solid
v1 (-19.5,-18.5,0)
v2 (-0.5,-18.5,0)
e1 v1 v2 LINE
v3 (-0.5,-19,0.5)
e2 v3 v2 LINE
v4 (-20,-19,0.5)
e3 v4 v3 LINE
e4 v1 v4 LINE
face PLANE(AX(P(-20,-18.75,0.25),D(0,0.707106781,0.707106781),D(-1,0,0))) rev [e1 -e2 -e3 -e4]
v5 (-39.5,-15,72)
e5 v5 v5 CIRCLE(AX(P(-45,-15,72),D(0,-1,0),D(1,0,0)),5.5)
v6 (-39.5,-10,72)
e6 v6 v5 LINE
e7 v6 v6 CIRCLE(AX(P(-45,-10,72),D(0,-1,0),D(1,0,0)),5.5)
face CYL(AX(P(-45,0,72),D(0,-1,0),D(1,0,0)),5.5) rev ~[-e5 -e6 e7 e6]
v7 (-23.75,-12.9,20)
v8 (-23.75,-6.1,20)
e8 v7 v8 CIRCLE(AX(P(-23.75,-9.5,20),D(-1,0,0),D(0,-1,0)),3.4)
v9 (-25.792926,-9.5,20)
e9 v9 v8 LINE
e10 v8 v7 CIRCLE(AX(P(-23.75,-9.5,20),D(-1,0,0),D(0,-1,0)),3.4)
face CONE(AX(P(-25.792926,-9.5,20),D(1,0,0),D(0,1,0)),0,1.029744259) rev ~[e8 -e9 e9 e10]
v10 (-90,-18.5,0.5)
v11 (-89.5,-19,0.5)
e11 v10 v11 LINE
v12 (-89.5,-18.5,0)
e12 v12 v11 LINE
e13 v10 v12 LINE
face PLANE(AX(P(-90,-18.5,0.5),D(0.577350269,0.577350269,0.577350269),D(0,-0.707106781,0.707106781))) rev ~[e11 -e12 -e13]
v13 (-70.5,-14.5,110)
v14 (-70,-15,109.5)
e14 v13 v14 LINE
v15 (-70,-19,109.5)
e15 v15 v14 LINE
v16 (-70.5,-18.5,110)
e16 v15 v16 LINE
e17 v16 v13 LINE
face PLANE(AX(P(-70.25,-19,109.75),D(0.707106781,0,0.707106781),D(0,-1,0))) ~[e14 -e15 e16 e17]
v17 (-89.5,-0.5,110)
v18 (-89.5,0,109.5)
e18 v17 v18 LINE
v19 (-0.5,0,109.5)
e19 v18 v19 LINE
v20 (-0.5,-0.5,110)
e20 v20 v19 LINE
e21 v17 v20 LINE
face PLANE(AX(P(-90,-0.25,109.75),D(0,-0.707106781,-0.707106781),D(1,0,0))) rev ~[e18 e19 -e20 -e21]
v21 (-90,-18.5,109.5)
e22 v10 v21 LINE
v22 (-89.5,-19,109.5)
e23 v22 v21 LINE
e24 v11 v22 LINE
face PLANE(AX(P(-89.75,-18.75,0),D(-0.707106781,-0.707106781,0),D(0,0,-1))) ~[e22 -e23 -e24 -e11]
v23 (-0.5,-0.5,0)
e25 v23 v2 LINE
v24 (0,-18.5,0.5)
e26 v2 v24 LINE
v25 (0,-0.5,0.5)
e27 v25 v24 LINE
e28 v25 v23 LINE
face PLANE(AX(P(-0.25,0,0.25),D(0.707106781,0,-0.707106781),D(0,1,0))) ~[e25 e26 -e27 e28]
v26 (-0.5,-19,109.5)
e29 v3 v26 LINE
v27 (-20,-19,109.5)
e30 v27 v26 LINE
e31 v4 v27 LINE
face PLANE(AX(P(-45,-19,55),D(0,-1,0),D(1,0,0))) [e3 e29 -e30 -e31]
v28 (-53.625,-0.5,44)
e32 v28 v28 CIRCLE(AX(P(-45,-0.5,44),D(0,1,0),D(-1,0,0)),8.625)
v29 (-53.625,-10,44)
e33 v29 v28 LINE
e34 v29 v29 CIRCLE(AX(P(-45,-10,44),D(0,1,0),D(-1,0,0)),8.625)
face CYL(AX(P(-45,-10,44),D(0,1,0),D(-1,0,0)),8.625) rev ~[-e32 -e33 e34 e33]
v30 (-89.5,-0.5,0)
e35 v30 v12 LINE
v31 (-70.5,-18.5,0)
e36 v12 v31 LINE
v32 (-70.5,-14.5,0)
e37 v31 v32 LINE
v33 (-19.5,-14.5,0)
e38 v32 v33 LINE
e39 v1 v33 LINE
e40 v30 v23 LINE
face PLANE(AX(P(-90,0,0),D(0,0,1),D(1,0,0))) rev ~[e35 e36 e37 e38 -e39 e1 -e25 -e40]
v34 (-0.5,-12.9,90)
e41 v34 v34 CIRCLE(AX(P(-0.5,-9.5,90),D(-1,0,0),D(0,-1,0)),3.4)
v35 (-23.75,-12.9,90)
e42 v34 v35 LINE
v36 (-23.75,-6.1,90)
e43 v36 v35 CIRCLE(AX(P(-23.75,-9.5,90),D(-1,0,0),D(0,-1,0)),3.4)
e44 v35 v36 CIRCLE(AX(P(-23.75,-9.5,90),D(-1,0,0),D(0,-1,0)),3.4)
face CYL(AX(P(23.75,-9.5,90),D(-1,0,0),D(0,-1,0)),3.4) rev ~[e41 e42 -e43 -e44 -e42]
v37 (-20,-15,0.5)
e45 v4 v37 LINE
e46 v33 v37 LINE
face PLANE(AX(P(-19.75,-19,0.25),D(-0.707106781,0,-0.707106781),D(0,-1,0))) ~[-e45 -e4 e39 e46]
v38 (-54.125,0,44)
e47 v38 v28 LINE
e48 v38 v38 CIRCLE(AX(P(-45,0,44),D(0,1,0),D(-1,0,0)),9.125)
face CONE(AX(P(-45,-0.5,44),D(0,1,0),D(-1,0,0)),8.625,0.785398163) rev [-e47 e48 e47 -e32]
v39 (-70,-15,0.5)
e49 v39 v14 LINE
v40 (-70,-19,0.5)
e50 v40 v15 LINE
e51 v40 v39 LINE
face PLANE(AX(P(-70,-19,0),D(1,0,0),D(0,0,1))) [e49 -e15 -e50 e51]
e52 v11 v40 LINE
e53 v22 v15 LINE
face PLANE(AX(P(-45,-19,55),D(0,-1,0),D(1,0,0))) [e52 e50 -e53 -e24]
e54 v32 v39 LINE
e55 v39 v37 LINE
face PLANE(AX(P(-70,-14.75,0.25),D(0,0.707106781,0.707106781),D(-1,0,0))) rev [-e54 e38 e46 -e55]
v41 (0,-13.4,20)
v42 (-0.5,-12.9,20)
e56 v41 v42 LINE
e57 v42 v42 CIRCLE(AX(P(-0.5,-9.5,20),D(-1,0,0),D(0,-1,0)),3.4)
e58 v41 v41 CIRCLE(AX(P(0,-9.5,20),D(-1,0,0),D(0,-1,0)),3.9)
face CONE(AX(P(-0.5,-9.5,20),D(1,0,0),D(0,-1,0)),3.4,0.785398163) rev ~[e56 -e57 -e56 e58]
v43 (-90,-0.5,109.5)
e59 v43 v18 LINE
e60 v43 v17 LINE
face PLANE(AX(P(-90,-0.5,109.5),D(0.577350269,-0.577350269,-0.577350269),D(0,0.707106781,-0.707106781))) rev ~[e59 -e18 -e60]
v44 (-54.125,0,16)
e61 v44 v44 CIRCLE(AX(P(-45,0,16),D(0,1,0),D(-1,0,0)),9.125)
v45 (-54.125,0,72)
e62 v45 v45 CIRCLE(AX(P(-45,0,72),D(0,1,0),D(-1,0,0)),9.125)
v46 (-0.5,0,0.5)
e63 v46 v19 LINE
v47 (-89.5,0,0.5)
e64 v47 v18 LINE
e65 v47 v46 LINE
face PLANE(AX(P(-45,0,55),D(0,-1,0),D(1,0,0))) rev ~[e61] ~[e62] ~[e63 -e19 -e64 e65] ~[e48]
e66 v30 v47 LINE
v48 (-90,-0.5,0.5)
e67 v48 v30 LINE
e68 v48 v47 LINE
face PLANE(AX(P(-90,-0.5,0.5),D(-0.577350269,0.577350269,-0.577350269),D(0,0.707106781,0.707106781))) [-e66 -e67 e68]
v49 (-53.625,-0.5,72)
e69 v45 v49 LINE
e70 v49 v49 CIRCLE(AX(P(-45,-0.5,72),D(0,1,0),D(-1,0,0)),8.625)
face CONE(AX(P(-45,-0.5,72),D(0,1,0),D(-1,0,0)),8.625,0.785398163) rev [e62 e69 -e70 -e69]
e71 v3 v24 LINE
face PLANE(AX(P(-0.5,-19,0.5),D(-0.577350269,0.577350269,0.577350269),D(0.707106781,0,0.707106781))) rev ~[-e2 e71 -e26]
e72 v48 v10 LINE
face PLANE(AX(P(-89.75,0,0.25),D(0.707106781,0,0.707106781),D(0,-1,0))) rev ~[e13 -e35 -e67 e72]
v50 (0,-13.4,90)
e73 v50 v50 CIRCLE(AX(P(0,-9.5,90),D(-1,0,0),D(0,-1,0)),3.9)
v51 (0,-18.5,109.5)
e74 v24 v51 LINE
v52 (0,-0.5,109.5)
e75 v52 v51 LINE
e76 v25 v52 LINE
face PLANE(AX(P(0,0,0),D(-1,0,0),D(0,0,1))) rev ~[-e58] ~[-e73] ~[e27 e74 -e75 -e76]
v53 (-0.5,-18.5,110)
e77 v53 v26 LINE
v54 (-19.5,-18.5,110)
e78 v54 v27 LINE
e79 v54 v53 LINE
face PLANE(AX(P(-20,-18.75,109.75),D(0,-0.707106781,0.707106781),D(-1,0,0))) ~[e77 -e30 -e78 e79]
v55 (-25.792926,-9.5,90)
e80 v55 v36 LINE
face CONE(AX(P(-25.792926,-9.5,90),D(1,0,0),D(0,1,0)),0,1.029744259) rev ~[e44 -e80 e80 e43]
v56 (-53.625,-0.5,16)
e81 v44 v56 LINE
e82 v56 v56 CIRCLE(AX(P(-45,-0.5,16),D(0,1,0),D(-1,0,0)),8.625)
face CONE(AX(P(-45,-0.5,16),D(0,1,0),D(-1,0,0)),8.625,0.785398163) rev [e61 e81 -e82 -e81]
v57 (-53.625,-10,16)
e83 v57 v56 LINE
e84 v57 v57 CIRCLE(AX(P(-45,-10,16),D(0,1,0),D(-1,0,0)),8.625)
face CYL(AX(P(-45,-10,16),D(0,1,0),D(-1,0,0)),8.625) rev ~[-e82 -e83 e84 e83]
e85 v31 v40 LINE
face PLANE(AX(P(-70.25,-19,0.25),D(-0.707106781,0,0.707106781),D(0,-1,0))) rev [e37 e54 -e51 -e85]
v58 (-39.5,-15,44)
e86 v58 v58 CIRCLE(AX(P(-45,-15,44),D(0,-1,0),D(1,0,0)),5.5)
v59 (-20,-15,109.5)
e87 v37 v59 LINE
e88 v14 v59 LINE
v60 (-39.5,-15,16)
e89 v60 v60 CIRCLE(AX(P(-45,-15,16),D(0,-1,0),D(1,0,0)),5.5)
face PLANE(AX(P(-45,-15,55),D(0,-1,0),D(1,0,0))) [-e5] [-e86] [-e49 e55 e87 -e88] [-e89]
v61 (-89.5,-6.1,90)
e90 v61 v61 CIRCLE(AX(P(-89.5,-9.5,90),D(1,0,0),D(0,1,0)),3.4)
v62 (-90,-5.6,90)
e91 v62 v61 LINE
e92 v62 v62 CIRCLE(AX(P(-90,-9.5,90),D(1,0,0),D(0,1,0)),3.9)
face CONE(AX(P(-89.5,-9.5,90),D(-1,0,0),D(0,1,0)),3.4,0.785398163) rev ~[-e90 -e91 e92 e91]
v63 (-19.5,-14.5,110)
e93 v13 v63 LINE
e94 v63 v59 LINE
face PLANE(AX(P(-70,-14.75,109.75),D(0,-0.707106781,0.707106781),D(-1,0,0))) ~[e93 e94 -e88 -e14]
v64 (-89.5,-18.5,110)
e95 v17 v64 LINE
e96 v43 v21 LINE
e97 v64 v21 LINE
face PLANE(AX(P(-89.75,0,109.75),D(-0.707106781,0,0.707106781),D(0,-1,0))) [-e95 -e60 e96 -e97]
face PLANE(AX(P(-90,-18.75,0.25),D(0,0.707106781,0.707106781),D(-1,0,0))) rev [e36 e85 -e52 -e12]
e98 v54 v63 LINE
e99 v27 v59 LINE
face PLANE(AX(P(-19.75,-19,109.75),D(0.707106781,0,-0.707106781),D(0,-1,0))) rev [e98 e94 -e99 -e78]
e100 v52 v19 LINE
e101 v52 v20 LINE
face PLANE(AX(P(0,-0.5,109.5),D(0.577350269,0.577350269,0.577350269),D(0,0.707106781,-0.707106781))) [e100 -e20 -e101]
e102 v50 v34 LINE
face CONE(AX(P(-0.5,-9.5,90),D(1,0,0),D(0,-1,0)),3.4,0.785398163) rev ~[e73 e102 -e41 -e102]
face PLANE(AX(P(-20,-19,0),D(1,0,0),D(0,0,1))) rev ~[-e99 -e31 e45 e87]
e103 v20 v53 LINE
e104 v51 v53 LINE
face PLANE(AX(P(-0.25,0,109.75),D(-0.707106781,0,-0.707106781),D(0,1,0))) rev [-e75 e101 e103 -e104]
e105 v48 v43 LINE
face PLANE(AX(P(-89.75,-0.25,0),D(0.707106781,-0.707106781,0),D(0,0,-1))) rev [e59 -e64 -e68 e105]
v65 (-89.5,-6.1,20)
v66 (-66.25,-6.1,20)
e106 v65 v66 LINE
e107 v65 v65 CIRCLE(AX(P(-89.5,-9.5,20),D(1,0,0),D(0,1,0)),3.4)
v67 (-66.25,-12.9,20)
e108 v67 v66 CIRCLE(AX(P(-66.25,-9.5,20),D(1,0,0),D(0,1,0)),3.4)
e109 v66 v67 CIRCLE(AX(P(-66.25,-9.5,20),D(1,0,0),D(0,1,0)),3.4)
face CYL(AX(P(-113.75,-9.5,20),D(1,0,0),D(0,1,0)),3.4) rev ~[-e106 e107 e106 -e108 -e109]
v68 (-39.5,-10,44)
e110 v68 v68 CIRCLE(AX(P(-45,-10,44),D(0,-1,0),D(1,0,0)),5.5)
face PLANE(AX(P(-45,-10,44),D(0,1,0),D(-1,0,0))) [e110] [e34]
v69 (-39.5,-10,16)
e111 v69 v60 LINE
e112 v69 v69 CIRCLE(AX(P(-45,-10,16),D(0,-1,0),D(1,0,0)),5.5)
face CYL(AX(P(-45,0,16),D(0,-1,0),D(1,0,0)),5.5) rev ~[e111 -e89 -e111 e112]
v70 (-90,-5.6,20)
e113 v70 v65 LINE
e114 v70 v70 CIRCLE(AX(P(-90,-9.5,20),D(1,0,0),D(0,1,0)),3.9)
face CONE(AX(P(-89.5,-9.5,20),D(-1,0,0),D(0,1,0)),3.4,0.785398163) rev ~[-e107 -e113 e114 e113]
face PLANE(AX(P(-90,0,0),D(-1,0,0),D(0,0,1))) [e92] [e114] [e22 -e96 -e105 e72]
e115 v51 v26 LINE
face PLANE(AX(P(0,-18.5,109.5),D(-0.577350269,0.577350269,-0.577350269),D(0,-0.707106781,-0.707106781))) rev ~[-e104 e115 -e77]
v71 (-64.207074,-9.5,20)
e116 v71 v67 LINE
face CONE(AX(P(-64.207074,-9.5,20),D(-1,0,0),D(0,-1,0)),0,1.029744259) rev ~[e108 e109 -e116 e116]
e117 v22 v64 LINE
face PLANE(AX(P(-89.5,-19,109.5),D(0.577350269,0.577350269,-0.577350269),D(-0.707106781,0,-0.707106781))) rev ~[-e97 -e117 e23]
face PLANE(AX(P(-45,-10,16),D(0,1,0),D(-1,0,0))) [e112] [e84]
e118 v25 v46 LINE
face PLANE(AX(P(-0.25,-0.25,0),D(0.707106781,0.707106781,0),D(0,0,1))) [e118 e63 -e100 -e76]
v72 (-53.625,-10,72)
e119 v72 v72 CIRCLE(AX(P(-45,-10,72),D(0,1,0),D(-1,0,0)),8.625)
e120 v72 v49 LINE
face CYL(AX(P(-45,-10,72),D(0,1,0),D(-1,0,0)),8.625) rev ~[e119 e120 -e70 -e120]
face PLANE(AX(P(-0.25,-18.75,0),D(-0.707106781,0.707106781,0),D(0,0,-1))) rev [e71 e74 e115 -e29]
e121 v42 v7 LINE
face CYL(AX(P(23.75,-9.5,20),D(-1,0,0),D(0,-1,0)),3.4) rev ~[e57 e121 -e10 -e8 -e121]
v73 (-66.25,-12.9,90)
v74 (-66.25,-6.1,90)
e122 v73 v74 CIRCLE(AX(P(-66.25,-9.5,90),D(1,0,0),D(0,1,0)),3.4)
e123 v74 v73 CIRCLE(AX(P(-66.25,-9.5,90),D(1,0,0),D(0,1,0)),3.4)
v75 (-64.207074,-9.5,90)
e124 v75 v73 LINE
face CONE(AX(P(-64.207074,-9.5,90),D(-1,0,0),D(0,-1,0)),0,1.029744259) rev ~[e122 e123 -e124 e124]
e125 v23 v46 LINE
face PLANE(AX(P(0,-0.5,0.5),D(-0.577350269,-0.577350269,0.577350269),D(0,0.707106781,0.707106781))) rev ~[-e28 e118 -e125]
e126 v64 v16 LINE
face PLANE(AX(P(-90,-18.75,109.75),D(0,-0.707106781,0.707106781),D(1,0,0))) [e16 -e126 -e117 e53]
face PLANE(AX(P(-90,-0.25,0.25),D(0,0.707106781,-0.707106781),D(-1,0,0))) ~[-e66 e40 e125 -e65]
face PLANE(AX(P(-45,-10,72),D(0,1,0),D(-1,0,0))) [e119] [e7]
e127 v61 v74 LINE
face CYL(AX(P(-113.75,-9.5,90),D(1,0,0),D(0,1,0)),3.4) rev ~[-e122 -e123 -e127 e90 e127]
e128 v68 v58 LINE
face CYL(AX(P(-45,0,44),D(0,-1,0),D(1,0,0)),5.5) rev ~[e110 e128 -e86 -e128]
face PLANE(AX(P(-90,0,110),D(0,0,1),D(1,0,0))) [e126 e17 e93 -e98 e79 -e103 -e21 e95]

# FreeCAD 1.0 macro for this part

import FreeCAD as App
import Part
import Sketcher


def edges_at(feature, points):
    """Names of the edges that pass closest to the given points."""
    edges = feature.Shape.Edges
    near = lambda p: min(range(len(edges)), key=lambda i: edges[i].distToShape(Part.Vertex(*p))[0])
    return sorted({f"Edge{near(p) + 1}" for p in points})

doc = App.newDocument("Part")
body = doc.addObject("PartDesign::Body", "Body")

sketch1 = doc.addObject("Sketcher::SketchObject", "Sketch")
body.addObject(sketch1)
sketch1.AttachmentSupport = (doc.XZ_Plane, [""])
sketch1.MapMode = "FlatFace"
sketch1.addGeometry([
    Part.LineSegment(App.Vector(-90, 110, 0), App.Vector(-90, 0, 0)),
    Part.LineSegment(App.Vector(-90, 0, 0), App.Vector(0, 0, 0)),
    Part.LineSegment(App.Vector(0, 0, 0), App.Vector(0, 110, 0)),
    Part.LineSegment(App.Vector(0, 110, 0), App.Vector(-90, 110, 0)),
], False)
sketch1.addConstraint([
    Sketcher.Constraint("Coincident", 0, 2, 1, 1),
    Sketcher.Constraint("Coincident", 1, 2, 2, 1),
    Sketcher.Constraint("Coincident", 2, 2, 3, 1),
    Sketcher.Constraint("Coincident", 3, 2, 0, 1),
    Sketcher.Constraint("Vertical", 0),
    Sketcher.Constraint("Horizontal", 1),
    Sketcher.Constraint("Vertical", 2),
    Sketcher.Constraint("Horizontal", 3),
    Sketcher.Constraint("Coincident", 1, 2, -1, 1),
    Sketcher.Constraint("DistanceX", 1, 1, 1, 2, 90.0),
    Sketcher.Constraint("DistanceY", 0, 2, 0, 1, 110.0),
])
pad1 = doc.addObject("PartDesign::Pad", "Pad")
body.addObject(pad1)
pad1.Profile = sketch1
pad1.Length = 19

sketch2 = doc.addObject("Sketcher::SketchObject", "Sketch001")
body.addObject(sketch2)
sketch2.AttachmentSupport = (doc.XZ_Plane, [""])
sketch2.MapMode = "FlatFace"
sketch2.AttachmentOffset = App.Placement(App.Vector(0, 0, 19), App.Rotation())
sketch2.addGeometry([
    Part.LineSegment(App.Vector(-70, 110, 0), App.Vector(-70, 0, 0)),
    Part.LineSegment(App.Vector(-70, 0, 0), App.Vector(-20, 0, 0)),
    Part.LineSegment(App.Vector(-20, 0, 0), App.Vector(-20, 110, 0)),
    Part.LineSegment(App.Vector(-20, 110, 0), App.Vector(-70, 110, 0)),
], False)
sketch2.addConstraint([
    Sketcher.Constraint("Coincident", 0, 2, 1, 1),
    Sketcher.Constraint("Coincident", 1, 2, 2, 1),
    Sketcher.Constraint("Coincident", 2, 2, 3, 1),
    Sketcher.Constraint("Coincident", 3, 2, 0, 1),
    Sketcher.Constraint("Vertical", 0),
    Sketcher.Constraint("Horizontal", 1),
    Sketcher.Constraint("Vertical", 2),
    Sketcher.Constraint("Horizontal", 3),
    Sketcher.Constraint("PointOnObject", 0, 2, -1),
    Sketcher.Constraint("DistanceX", 1, 1, 1, 2, 50.0),
    Sketcher.Constraint("DistanceY", 0, 2, 0, 1, 110.0),
    Sketcher.Constraint("DistanceX", 0, 2, -1, 1, 70.0),
])
pocket1 = doc.addObject("PartDesign::Pocket", "Pocket")
body.addObject(pocket1)
pocket1.Profile = sketch2
pocket1.Length = 4

sketch3 = doc.addObject("Sketcher::SketchObject", "Sketch002")
body.addObject(sketch3)
sketch3.AttachmentSupport = (doc.XZ_Plane, [""])
sketch3.MapMode = "FlatFace"
sketch3.addGeometry([
    Part.Circle(App.Vector(-45, 72, 0), App.Vector(0, 0, 1), 6),
    Part.Circle(App.Vector(-45, 44, 0), App.Vector(0, 0, 1), 6),
    Part.Circle(App.Vector(-45, 16, 0), App.Vector(0, 0, 1), 6),
], False)
sketch3.addConstraint([
    Sketcher.Constraint("Equal", 0, 1),
    Sketcher.Constraint("Equal", 1, 2),
    Sketcher.Constraint("Vertical", 0, 3, 1, 3),
    Sketcher.Constraint("Vertical", 1, 3, 2, 3),
    Sketcher.Constraint("Diameter", 0, 11.0),
    Sketcher.Constraint("DistanceX", 0, 3, -1, 1, 45.0),
    Sketcher.Constraint("DistanceY", -1, 1, 0, 3, 72.0),
    Sketcher.Constraint("DistanceY", -1, 1, 1, 3, 44.0),
    Sketcher.Constraint("DistanceY", -1, 1, 2, 3, 16.0),
])
doc.recompute()
hole = doc.addObject("PartDesign::Hole", "Hole")
body.addObject(hole)
hole.Profile = sketch3
hole.ThreadType = "None"
hole.Diameter = 11
hole.DepthType = "ThroughAll"
hole.HoleCutType = "Counterbore"
hole.HoleCutDiameter = 17.25
hole.HoleCutDepth = 10
hole.Reversed = True

sketch4 = doc.addObject("Sketcher::SketchObject", "Sketch003")
body.addObject(sketch4)
sketch4.AttachmentSupport = (doc.YZ_Plane, [""])
sketch4.MapMode = "FlatFace"
sketch4.addGeometry([
    Part.Circle(App.Vector(-9.5, 90, 0), App.Vector(0, 0, 1), 3.4),
    Part.Circle(App.Vector(-9.5, 20, 0), App.Vector(0, 0, 1), 3.4),
], False)
sketch4.addConstraint([
    Sketcher.Constraint("Equal", 0, 1),
    Sketcher.Constraint("Vertical", 0, 3, 1, 3),
    Sketcher.Constraint("Diameter", 0, 6.8),
    Sketcher.Constraint("DistanceY", -1, 1, 0, 3, 90.0),
    Sketcher.Constraint("DistanceY", -1, 1, 1, 3, 20.0),
    Sketcher.Constraint("DistanceX", 0, 3, -1, 1, 9.5),
])
doc.recompute()
hole2 = doc.addObject("PartDesign::Hole", "Hole001")
body.addObject(hole2)
hole2.Profile = sketch4
hole2.ThreadType = "None"
hole2.Diameter = 6.8
hole2.DepthType = "Dimension"
hole2.Depth = 23.75
hole2.DrillPoint = "Angled"
hole2.DrillPointAngle = 118

sketch5 = doc.addObject("Sketcher::SketchObject", "Sketch004")
body.addObject(sketch5)
sketch5.AttachmentSupport = (doc.YZ_Plane, [""])
sketch5.MapMode = "FlatFace"
sketch5.AttachmentOffset = App.Placement(App.Vector(0, 0, -90), App.Rotation())
sketch5.addGeometry([
    Part.Circle(App.Vector(-9.5, 90, 0), App.Vector(0, 0, 1), 3.4),
    Part.Circle(App.Vector(-9.5, 20, 0), App.Vector(0, 0, 1), 3.4),
], False)
sketch5.addConstraint([
    Sketcher.Constraint("Equal", 0, 1),
    Sketcher.Constraint("Vertical", 0, 3, 1, 3),
    Sketcher.Constraint("Diameter", 0, 6.8),
    Sketcher.Constraint("DistanceY", -1, 1, 0, 3, 90.0),
    Sketcher.Constraint("DistanceY", -1, 1, 1, 3, 20.0),
    Sketcher.Constraint("DistanceX", 0, 3, -1, 1, 9.5),
])
doc.recompute()
hole3 = doc.addObject("PartDesign::Hole", "Hole002")
body.addObject(hole3)
hole3.Profile = sketch5
hole3.ThreadType = "None"
hole3.Diameter = 6.8
hole3.DepthType = "Dimension"
hole3.Depth = 23.75
hole3.DrillPoint = "Angled"
hole3.DrillPointAngle = 118
hole3.Reversed = True
doc.recompute()

chamfer = doc.addObject("PartDesign::Chamfer", "Chamfer")
body.addObject(chamfer)
chamfer.Base = (hole3, edges_at(hole3, [
    (-45, 0, 110),
    (-90, -9.5, 110),
    (-80, -19, 110),
    (-70, -17, 110),
    (-45, -15, 110),
    (-20, -17, 110),
    (-10, -19, 110),
    (0, -9.5, 110),
    (-45, 0, 0),
    (0, -9.5, 0),
    (-10, -19, 0),
    (-20, -17, 0),
    (-45, -15, 0),
    (-70, -17, 0),
    (-80, -19, 0),
    (-90, -9.5, 0),
    (0, 0, 55),
    (0, -19, 55),
    (0, -6.1, 20),
    (0, -6.1, 90),
    (-90, 0, 55),
    (-90, -19, 55),
    (-90, -12.9, 90),
    (-90, -12.9, 20),
    (-36.375, 0, 16),
    (-36.375, 0, 44),
    (-36.375, 0, 72),
]))
chamfer.Size = 0.5

doc.recompute()
